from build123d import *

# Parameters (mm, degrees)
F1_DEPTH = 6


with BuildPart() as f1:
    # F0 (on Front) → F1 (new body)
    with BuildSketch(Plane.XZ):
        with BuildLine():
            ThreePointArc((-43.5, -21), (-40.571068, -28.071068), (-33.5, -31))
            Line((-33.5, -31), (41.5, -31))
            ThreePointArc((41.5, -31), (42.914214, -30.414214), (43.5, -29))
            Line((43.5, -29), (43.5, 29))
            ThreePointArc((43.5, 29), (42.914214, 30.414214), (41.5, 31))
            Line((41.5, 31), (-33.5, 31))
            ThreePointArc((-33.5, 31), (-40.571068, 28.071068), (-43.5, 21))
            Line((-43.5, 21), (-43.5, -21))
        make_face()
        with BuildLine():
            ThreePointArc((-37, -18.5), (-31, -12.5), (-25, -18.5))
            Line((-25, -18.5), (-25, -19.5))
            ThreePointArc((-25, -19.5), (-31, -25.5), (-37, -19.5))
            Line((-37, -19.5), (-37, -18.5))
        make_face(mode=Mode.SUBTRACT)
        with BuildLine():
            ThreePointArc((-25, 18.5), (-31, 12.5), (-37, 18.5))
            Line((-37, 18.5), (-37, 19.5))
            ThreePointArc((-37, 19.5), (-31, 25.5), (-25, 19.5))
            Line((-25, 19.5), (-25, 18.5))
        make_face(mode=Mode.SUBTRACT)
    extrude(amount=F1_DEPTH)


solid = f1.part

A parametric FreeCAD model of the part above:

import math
import FreeCAD as App
import Part
import Sketcher

V = App.Vector
Q = App.Units.Quantity

doc = App.newDocument("Part")
body = doc.addObject("PartDesign::Body", "Body")

# Sketch on XZ plane
sketch1 = body.newObject("Sketcher::SketchObject", "Sketch")
sketch1.AttachmentSupport = (doc.getObject("XZ_Plane"), [""])
sketch1.MapMode = "FlatFace"
sketch1.addGeometry(Part.ArcOfCircle(Part.Circle(V(-33.5, -21, 0), V(0, 0, 1), 10), math.radians(180), math.radians(270)), False)
sketch1.addGeometry(Part.LineSegment(V(-33.5, -31, 0), V(41.5, -31, 0)), False)
sketch1.addGeometry(Part.ArcOfCircle(Part.Circle(V(41.5, -29, 0), V(0, 0, 1), 2), math.radians(-90), math.radians(0)), False)
sketch1.addGeometry(Part.LineSegment(V(43.5, -29, 0), V(43.5, 29, 0)), False)
sketch1.addGeometry(Part.ArcOfCircle(Part.Circle(V(41.5, 29, 0), V(0, 0, 1), 2), math.radians(0), math.radians(90)), False)
sketch1.addGeometry(Part.LineSegment(V(41.5, 31, 0), V(-33.5, 31, 0)), False)
sketch1.addGeometry(Part.ArcOfCircle(Part.Circle(V(-33.5, 21, 0), V(0, 0, 1), 10), math.radians(90), math.radians(180)), False)
sketch1.addGeometry(Part.LineSegment(V(-43.5, 21, 0), V(-43.5, -21, 0)), False)
sketch1.addGeometry(Part.LineSegment(V(-37, -19.5, 0), V(-37, -18.5, 0)), False)
sketch1.addGeometry(Part.ArcOfCircle(Part.Circle(V(-31, -18.5, 0), V(0, 0, 1), 6), math.radians(0), math.radians(180)), False)
sketch1.addGeometry(Part.LineSegment(V(-25, -18.5, 0), V(-25, -19.5, 0)), False)
sketch1.addGeometry(Part.ArcOfCircle(Part.Circle(V(-31, -19.5, 0), V(0, 0, 1), 6), math.radians(180), math.radians(360)), False)
sketch1.addGeometry(Part.LineSegment(V(-25, 19.5, 0), V(-25, 18.5, 0)), False)
sketch1.addGeometry(Part.ArcOfCircle(Part.Circle(V(-31, 18.5, 0), V(0, 0, 1), 6), math.radians(180), math.radians(360)), False)
sketch1.addGeometry(Part.LineSegment(V(-37, 18.5, 0), V(-37, 19.5, 0)), False)
sketch1.addGeometry(Part.ArcOfCircle(Part.Circle(V(-31, 19.5, 0), V(0, 0, 1), 6), math.radians(0), math.radians(180)), False)
sketch1.addConstraint(Sketcher.Constraint("Tangent", 0, 2, 1, 1))
sketch1.addConstraint(Sketcher.Constraint("Tangent", 1, 2, 2, 1))
sketch1.addConstraint(Sketcher.Constraint("Tangent", 2, 2, 3, 1))
sketch1.addConstraint(Sketcher.Constraint("Tangent", 3, 2, 4, 1))
sketch1.addConstraint(Sketcher.Constraint("Tangent", 4, 2, 5, 1))
sketch1.addConstraint(Sketcher.Constraint("Tangent", 5, 2, 6, 1))
sketch1.addConstraint(Sketcher.Constraint("Tangent", 6, 2, 7, 1))
sketch1.addConstraint(Sketcher.Constraint("Tangent", 7, 2, 0, 1))
sketch1.addConstraint(Sketcher.Constraint("Tangent", 8, 2, 9, 2))
sketch1.addConstraint(Sketcher.Constraint("Tangent", 9, 1, 10, 1))
sketch1.addConstraint(Sketcher.Constraint("Tangent", 10, 2, 11, 2))
sketch1.addConstraint(Sketcher.Constraint("Tangent", 11, 1, 8, 1))
sketch1.addConstraint(Sketcher.Constraint("Tangent", 12, 2, 13, 2))
sketch1.addConstraint(Sketcher.Constraint("Tangent", 13, 1, 14, 1))
sketch1.addConstraint(Sketcher.Constraint("Tangent", 14, 2, 15, 2))
sketch1.addConstraint(Sketcher.Constraint("Tangent", 15, 1, 12, 1))
sketch1.addConstraint(Sketcher.Constraint("Horizontal", 1))
sketch1.addConstraint(Sketcher.Constraint("Vertical", 3))
sketch1.addConstraint(Sketcher.Constraint("Horizontal", 5))
sketch1.addConstraint(Sketcher.Constraint("Vertical", 7))
sketch1.addConstraint(Sketcher.Constraint("Vertical", 8))
sketch1.addConstraint(Sketcher.Constraint("Vertical", 10))
sketch1.addConstraint(Sketcher.Constraint("Vertical", 12))
sketch1.addConstraint(Sketcher.Constraint("Vertical", 14))
sketch1.addConstraint(Sketcher.Constraint("Equal", 2, 4))
sketch1.addConstraint(Sketcher.Constraint("Equal", 0, 6))
sketch1.addConstraint(Sketcher.Constraint("Equal", 11, 13))
sketch1.addConstraint(Sketcher.Constraint("Symmetric", 9, 3, 13, 3, -1))
sketch1.addConstraint(Sketcher.Constraint("Equal", 10, 12))
sketch1.addConstraint(Sketcher.Constraint("Radius", 0, Q("9.999999 mm")))
sketch1.addConstraint(Sketcher.Constraint("Radius", 2, Q("1.999999 mm")))
sketch1.addConstraint(Sketcher.Constraint("Radius", 9, Q("6 mm")))
sketch1.addConstraint(Sketcher.Constraint("DistanceX", 1, 1, 1, 2, Q("75 mm")))
sketch1.addConstraint(Sketcher.Constraint("DistanceY", 3, 1, 3, 2, Q("58 mm")))
sketch1.addConstraint(Sketcher.Constraint("DistanceY", 8, 1, 8, 2, Q("1 mm")))
sketch1.addConstraint(Sketcher.Constraint("DistanceY", 0, 3, -1, 1, Q("21.000001 mm")))
sketch1.addConstraint(Sketcher.Constraint("DistanceX", 9, 3, -1, 1, Q("31 mm")))
sketch1.addConstraint(Sketcher.Constraint("DistanceY", 9, 3, 13, 3, Q("37 mm")))
sketch1.addConstraint(Sketcher.Constraint("DistanceX", 0, 3, -1, 1, Q("33.500001 mm")))
pad1 = body.newObject("PartDesign::Pad", "Pad")
pad1.Profile = sketch1
pad1.Length = 6

doc.recompute()
